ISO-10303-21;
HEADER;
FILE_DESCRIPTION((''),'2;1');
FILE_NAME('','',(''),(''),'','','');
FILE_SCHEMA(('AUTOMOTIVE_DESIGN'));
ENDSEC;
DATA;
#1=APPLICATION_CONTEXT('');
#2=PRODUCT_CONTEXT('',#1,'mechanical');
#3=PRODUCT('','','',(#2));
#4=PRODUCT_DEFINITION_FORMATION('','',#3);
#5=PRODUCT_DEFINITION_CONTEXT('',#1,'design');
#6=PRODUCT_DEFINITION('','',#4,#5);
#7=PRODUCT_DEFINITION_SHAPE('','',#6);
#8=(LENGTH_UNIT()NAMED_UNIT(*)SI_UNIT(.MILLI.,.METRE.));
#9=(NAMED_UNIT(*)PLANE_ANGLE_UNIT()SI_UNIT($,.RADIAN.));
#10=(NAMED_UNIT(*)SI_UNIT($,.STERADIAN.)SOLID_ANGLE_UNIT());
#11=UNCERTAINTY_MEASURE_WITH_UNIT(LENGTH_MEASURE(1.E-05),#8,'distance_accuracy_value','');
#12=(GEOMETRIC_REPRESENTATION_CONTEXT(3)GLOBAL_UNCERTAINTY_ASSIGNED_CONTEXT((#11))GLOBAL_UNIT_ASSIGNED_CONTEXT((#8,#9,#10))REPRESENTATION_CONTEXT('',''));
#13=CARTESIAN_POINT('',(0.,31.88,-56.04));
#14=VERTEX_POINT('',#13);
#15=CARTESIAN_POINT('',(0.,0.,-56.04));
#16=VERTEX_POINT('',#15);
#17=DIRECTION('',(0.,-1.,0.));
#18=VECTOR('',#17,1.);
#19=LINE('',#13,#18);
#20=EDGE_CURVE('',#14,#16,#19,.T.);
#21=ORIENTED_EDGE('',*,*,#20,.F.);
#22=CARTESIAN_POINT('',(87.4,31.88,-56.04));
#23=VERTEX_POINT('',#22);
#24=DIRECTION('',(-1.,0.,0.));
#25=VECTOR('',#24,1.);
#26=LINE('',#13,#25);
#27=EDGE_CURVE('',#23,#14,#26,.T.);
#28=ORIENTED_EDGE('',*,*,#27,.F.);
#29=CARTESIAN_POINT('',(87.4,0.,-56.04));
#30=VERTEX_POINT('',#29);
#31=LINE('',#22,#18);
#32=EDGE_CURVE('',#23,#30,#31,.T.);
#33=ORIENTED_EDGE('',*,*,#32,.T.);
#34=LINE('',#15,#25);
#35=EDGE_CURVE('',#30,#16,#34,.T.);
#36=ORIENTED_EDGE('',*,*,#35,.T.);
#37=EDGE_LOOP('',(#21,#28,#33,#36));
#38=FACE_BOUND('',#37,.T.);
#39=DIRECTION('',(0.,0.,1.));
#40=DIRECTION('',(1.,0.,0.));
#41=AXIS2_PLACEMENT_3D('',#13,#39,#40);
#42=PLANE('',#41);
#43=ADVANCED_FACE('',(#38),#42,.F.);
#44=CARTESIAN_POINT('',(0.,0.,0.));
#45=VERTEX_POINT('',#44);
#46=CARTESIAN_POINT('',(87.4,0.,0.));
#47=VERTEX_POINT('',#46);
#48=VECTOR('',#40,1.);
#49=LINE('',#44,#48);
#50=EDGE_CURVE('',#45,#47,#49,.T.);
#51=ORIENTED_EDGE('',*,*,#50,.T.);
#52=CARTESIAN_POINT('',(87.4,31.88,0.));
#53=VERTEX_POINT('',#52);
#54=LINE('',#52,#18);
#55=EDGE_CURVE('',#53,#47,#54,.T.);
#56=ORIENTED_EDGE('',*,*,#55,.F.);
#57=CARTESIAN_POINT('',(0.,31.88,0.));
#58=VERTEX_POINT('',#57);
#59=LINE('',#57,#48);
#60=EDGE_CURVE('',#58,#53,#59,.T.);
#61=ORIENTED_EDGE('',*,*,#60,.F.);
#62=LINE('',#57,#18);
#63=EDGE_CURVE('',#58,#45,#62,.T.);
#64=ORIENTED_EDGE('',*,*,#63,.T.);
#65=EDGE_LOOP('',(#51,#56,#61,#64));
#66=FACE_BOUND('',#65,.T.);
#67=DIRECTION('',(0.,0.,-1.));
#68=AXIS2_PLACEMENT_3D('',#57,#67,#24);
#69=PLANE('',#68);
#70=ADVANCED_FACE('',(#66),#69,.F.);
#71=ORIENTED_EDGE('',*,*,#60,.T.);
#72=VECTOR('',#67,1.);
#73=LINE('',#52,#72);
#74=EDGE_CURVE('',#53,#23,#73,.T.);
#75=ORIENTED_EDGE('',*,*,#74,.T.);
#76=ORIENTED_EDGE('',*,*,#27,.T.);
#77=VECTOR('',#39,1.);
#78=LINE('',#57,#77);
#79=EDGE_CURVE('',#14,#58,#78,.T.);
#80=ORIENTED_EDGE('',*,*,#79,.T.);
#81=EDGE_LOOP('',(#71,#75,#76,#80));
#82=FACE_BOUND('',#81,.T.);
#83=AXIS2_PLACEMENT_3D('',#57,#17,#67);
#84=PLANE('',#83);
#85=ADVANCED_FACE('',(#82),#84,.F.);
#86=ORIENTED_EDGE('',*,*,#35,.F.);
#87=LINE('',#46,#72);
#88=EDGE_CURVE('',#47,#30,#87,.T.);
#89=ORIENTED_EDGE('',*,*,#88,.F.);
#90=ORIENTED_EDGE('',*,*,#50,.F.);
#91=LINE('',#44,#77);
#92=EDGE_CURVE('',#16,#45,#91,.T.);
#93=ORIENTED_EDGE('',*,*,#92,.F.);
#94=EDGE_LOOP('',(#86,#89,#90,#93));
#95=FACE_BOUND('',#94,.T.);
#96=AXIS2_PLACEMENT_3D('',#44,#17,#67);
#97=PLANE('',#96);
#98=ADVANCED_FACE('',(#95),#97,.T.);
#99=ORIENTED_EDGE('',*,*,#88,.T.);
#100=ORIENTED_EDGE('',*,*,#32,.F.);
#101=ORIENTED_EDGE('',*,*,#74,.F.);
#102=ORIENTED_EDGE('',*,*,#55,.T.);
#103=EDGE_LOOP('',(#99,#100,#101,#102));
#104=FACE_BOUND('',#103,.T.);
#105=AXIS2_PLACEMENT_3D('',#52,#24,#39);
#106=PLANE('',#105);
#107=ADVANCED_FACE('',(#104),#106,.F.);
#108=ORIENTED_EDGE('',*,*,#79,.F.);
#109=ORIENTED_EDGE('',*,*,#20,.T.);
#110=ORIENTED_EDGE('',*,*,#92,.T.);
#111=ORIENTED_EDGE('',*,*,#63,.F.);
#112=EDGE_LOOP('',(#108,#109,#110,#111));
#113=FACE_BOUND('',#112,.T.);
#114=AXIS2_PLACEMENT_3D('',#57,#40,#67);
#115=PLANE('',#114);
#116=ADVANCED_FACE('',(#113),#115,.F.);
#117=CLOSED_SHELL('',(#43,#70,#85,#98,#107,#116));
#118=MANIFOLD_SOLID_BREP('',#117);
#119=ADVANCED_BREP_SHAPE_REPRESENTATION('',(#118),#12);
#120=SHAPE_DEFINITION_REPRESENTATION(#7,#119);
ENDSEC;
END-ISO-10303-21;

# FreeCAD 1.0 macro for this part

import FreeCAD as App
import Part
import Sketcher
Q = App.Units.Quantity

doc = App.newDocument("Part")
body = doc.addObject("PartDesign::Body", "Body")

sketch1 = doc.addObject("Sketcher::SketchObject", "Sketch")
body.addObject(sketch1)
sketch1.AttachmentSupport = (doc.XZ_Plane, [""])
sketch1.MapMode = "FlatFace"
sketch1.addGeometry([
    Part.LineSegment(App.Vector(0, -56.04, 0), App.Vector(0, 0, 0)),
    Part.LineSegment(App.Vector(0, 0, 0), App.Vector(87.4, 0, 0)),
    Part.LineSegment(App.Vector(87.4, 0, 0), App.Vector(87.4, -56.04, 0)),
    Part.LineSegment(App.Vector(87.4, -56.04, 0), App.Vector(0, -56.04, 0)),
], False)
sketch1.addConstraint([
    Sketcher.Constraint("Coincident", 0, 2, 1, 1),
    Sketcher.Constraint("Coincident", 1, 2, 2, 1),
    Sketcher.Constraint("Coincident", 2, 2, 3, 1),
    Sketcher.Constraint("Coincident", 3, 2, 0, 1),
    Sketcher.Constraint("Vertical", 0),
    Sketcher.Constraint("Horizontal", 1),
    Sketcher.Constraint("Vertical", 2),
    Sketcher.Constraint("Horizontal", 3),
    Sketcher.Constraint("Coincident", 0, 2, -1, 1),
    Sketcher.Constraint("DistanceX", 1, 1, 1, 2, Q("87.4 mm")),
    Sketcher.Constraint("DistanceY", 0, 1, 0, 2, Q("56.04 mm")),
])
pad1 = doc.addObject("PartDesign::Pad", "Pad")
body.addObject(pad1)
pad1.Profile = sketch1
pad1.Length = 31.88
pad1.Reversed = True

doc.recompute()
